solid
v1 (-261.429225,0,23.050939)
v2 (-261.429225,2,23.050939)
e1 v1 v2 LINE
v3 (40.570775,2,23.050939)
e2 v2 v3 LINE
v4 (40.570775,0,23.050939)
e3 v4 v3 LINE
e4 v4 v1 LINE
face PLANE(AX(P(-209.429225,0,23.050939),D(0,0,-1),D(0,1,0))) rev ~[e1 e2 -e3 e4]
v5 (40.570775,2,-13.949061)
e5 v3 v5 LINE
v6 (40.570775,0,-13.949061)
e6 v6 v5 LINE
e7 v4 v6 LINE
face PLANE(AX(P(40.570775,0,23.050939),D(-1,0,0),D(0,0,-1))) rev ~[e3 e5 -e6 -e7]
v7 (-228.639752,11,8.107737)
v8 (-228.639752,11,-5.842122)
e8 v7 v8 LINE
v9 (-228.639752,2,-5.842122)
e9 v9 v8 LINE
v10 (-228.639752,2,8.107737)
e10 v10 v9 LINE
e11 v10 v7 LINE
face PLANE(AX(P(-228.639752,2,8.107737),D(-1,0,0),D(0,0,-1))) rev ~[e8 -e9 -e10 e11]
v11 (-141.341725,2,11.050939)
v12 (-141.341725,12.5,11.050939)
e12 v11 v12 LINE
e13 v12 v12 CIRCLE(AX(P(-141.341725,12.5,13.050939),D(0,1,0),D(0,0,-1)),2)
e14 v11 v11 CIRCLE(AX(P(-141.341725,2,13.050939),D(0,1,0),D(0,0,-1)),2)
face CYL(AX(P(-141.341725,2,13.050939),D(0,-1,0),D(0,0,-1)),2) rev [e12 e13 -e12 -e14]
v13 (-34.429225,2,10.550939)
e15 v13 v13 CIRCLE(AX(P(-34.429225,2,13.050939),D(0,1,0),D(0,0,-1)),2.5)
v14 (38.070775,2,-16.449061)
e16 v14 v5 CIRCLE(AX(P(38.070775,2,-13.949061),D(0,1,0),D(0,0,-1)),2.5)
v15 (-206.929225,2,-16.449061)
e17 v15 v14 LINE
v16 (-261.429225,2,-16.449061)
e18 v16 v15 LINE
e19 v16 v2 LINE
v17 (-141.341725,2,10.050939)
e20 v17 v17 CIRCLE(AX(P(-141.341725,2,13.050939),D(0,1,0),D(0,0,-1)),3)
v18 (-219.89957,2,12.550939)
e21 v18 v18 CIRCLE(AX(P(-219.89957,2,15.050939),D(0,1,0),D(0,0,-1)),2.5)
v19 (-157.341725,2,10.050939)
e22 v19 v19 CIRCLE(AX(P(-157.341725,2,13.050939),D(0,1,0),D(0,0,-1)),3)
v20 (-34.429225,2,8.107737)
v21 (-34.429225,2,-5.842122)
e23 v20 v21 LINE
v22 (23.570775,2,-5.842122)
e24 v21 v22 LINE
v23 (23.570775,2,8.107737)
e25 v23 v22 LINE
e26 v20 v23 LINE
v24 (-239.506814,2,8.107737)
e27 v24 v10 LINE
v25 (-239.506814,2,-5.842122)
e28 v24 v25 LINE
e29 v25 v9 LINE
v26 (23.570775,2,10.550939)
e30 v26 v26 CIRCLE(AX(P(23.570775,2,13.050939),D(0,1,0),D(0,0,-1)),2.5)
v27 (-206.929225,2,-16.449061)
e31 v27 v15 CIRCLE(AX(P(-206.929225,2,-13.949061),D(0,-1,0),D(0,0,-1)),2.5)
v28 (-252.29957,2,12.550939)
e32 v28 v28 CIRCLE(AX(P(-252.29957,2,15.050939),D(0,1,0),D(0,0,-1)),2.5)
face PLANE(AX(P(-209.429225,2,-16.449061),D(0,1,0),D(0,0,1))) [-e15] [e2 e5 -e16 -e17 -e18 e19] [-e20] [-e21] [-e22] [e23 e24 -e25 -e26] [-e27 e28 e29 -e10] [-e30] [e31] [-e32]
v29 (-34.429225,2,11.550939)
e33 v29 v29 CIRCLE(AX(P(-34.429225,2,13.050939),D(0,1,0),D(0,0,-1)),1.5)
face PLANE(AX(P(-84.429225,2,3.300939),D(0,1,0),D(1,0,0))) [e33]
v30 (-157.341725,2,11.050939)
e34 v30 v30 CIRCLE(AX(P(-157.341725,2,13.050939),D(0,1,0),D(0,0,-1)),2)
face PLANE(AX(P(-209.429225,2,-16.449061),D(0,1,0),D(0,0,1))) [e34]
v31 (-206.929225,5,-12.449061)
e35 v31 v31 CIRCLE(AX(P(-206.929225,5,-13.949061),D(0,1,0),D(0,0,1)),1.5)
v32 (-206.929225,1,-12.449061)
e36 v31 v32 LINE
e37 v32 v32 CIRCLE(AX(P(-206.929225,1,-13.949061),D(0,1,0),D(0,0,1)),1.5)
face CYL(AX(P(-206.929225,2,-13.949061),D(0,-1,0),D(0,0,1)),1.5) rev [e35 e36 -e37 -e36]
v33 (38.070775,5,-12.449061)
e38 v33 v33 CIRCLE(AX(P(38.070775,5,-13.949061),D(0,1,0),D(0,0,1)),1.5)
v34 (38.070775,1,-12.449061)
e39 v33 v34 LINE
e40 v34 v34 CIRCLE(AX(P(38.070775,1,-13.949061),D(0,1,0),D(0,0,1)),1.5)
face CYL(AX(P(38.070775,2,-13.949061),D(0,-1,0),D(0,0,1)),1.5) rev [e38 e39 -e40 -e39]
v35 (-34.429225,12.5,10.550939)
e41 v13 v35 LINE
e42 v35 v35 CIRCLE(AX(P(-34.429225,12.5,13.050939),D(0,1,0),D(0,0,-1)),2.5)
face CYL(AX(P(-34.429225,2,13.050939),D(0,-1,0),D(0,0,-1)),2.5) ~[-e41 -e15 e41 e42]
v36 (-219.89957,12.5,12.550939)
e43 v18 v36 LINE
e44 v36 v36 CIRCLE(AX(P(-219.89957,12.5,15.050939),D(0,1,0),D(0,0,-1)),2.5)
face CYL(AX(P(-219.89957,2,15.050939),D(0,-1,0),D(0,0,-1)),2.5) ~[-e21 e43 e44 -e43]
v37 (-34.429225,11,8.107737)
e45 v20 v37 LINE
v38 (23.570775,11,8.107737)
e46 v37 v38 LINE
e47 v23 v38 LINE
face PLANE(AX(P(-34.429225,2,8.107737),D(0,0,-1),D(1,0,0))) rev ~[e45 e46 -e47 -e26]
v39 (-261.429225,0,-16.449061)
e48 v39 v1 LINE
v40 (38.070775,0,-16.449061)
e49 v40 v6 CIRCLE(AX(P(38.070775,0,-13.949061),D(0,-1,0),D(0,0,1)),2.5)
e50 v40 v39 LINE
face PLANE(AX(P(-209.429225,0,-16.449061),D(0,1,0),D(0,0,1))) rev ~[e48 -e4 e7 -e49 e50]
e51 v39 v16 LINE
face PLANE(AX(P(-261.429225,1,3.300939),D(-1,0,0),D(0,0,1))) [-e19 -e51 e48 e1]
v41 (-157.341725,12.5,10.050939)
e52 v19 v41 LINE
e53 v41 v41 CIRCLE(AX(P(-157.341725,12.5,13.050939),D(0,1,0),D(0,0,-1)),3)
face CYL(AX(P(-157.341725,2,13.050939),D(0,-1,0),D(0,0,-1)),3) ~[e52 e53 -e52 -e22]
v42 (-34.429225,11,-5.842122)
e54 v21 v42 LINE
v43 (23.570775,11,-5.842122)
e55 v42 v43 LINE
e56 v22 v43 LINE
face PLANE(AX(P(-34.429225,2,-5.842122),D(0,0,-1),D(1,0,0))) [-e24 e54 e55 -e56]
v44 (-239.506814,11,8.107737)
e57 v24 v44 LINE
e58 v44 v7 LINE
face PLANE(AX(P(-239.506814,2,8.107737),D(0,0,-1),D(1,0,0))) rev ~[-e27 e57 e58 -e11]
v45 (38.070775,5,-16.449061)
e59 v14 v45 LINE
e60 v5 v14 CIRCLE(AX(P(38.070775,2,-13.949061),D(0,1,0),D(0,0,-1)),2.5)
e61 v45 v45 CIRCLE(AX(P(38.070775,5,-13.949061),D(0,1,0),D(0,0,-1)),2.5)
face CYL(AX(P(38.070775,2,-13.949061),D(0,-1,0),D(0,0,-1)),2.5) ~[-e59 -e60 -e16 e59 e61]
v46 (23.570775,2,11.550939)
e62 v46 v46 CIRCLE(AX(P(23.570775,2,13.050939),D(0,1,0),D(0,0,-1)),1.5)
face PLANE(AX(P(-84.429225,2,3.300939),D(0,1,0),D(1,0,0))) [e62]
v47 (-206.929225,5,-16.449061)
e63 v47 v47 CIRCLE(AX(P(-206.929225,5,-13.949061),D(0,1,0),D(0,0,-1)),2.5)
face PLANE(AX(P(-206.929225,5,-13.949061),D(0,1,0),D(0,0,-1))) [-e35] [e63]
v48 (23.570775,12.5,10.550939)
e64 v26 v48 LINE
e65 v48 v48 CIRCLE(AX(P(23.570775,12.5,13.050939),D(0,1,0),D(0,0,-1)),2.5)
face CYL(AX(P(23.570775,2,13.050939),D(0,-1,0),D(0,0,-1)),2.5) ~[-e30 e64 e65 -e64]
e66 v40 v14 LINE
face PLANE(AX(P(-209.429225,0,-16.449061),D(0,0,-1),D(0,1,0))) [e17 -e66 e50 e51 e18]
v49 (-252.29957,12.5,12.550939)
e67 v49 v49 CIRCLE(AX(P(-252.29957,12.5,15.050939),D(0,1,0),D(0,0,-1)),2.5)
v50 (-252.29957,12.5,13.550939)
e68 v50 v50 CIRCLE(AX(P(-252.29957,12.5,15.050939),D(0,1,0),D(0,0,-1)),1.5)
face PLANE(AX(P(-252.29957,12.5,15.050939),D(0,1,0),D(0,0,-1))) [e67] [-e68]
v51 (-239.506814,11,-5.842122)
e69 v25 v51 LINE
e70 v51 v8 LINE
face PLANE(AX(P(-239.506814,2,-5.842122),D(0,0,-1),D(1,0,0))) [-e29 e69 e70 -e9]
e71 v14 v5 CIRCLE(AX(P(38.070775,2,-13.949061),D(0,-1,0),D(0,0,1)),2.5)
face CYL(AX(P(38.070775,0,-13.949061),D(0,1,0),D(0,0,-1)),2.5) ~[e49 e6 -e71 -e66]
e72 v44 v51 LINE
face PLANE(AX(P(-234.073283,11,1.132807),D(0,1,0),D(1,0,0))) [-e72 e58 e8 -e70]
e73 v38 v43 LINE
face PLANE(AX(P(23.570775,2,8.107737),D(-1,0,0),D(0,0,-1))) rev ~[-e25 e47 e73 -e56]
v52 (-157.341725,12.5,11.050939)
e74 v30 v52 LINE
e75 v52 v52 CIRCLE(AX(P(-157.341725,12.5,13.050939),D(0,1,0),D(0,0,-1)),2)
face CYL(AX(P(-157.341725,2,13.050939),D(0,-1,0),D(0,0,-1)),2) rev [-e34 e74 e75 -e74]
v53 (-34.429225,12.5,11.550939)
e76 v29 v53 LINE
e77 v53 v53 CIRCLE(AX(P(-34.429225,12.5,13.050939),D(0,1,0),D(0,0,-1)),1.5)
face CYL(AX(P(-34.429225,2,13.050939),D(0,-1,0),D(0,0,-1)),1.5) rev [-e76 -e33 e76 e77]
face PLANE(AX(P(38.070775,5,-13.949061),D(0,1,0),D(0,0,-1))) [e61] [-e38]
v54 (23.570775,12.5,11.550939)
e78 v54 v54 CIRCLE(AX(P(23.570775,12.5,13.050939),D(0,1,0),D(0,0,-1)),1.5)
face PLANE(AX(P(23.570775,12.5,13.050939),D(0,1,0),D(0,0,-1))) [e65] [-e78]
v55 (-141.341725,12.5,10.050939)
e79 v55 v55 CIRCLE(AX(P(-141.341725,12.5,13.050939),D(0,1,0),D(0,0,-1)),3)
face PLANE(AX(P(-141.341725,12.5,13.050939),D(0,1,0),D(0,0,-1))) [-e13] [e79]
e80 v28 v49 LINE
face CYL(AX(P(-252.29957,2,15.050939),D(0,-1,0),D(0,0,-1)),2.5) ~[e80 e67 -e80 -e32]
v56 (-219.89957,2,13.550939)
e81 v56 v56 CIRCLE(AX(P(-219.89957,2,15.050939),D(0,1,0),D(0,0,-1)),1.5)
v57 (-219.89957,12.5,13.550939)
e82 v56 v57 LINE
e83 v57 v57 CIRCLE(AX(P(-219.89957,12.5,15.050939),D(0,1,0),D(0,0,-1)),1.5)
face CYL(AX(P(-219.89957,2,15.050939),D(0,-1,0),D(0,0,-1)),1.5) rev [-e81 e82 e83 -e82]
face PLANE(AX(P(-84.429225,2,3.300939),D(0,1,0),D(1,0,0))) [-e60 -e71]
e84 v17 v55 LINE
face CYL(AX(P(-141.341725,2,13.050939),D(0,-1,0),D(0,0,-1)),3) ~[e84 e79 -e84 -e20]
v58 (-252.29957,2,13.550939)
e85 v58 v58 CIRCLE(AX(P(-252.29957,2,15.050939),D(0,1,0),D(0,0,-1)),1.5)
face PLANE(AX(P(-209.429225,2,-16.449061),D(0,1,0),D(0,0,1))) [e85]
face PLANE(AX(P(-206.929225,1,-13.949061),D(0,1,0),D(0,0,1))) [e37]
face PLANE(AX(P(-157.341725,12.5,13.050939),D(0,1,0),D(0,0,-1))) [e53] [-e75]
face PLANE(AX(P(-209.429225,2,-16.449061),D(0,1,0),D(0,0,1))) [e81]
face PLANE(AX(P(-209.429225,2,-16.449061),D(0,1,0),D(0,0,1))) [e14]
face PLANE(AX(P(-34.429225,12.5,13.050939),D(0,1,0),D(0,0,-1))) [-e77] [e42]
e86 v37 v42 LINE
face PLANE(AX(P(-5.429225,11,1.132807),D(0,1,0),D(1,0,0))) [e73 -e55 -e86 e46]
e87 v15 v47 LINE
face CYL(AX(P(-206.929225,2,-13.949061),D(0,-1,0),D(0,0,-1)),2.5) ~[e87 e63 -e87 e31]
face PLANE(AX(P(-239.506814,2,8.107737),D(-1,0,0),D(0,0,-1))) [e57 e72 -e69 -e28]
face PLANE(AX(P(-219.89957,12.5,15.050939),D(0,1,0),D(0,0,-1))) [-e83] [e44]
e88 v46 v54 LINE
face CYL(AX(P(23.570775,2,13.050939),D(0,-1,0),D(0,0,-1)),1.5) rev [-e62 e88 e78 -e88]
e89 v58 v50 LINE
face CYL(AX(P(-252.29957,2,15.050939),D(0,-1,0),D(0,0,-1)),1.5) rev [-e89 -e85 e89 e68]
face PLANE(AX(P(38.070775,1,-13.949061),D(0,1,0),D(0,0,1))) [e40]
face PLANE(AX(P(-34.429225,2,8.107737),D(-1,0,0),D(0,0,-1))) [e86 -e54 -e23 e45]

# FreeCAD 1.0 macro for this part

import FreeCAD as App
import Part
import Sketcher

V = App.Vector
Q = App.Units.Quantity


def edges_at(feature, points):
    """Names of the edges that pass closest to the given points."""
    edges = feature.Shape.Edges
    near = lambda p: min(range(len(edges)), key=lambda i: edges[i].distToShape(Part.Vertex(*p))[0])
    return sorted({f"Edge{near(p) + 1}" for p in points})


def add_polygon(sketch, points):
    """Adds a closed chain of lines whose ends are joined by coincident constraints."""
    first, n = sketch.GeometryCount, len(points)
    for a, b in zip(points, points[1:] + points[:1]):
        sketch.addGeometry(Part.LineSegment(App.Vector(*a, 0), App.Vector(*b, 0)), False)
    for i in range(n):
        sketch.addConstraint(Sketcher.Constraint("Coincident", first + i, 2, first + (i + 1) % n, 1))

doc = App.newDocument("Part")
body = doc.addObject("PartDesign::Body", "Body")

sketch1 = body.newObject("Sketcher::SketchObject", "Sketch")
sketch1.AttachmentSupport = (doc.getObject("XZ_Plane"), [""])
sketch1.MapMode = "FlatFace"
add_polygon(sketch1, [(-209, -16), (-209, 23), (41, 23), (41, -16)])
sketch1.addConstraint([
    Sketcher.Constraint("Vertical", 0),
    Sketcher.Constraint("Horizontal", 1),
    Sketcher.Constraint("Vertical", 2),
    Sketcher.Constraint("Horizontal", 3),
    Sketcher.Constraint("DistanceX", 1, 1, 1, 2, Q("250 mm")),
    Sketcher.Constraint("DistanceY", 0, 1, 0, 2, Q("39.5 mm")),
    Sketcher.Constraint("DistanceY", -1, 1, 0, 2, Q("23.050939 mm")),
    Sketcher.Constraint("DistanceX", 0, 2, -1, 1, Q("209.429225 mm")),
])
pad1 = body.newObject("PartDesign::Pad", "Pad")
pad1.Profile = sketch1
pad1.Length = 2
pad1.Reversed = True

sketch2 = body.newObject("Sketcher::SketchObject", "Sketch001")
sketch2.AttachmentSupport = (doc.getObject("XZ_Plane"), [""])
sketch2.MapMode = "FlatFace"
sketch2.AttachmentOffset = App.Placement(V(0, 0, -2), App.Rotation())
sketch2.addGeometry([
    Part.Circle(V(38.1, -13.9, 0), V(0, 0, 1), 2.5),
    Part.Circle(V(38.1, -13.9, 0), V(0, 0, 1), 1.5),
], False)
sketch2.addConstraint([
    Sketcher.Constraint("Coincident", 1, 3, 0, 3),
    Sketcher.Constraint("Diameter", 0, Q("5 mm")),
    Sketcher.Constraint("Diameter", 1, Q("3 mm")),
    Sketcher.Constraint("DistanceY", 0, 3, -1, 1, Q("13.949061 mm")),
    Sketcher.Constraint("DistanceX", -1, 1, 0, 3, Q("38.070775 mm")),
])
pad2 = body.newObject("PartDesign::Pad", "Pad001")
pad2.Profile = sketch2
pad2.Length = 3
pad2.Reversed = True
doc.recompute()

fillet = body.newObject("PartDesign::Fillet", "Fillet")
fillet.Base = (pad2, edges_at(pad2, [(40.571, 1, -16.449)]))
fillet.Radius = 2.5

sketch3 = body.newObject("Sketcher::SketchObject", "Sketch002")
sketch3.AttachmentSupport = (doc.getObject("XZ_Plane"), [""])
sketch3.MapMode = "FlatFace"
sketch3.AttachmentOffset = App.Placement(V(0, 0, -2), App.Rotation())
sketch3.addGeometry([
    Part.Circle(V(-206.9, -13.9, 0), V(0, 0, 1), 2.5),
    Part.Circle(V(-206.9, -13.9, 0), V(0, 0, 1), 1.5),
], False)
sketch3.addConstraint([
    Sketcher.Constraint("Coincident", 1, 3, 0, 3),
    Sketcher.Constraint("Diameter", 0, Q("5 mm")),
    Sketcher.Constraint("Diameter", 1, Q("3 mm")),
    Sketcher.Constraint("DistanceY", 0, 3, -1, 1, Q("13.949061 mm")),
    Sketcher.Constraint("DistanceX", 0, 3, -1, 1, Q("206.929225 mm")),
])
pad3 = body.newObject("PartDesign::Pad", "Pad002")
pad3.Profile = sketch3
pad3.Length = 3
pad3.Reversed = True

sketch4 = body.newObject("Sketcher::SketchObject", "Sketch003")
sketch4.AttachmentSupport = (doc.getObject("XZ_Plane"), [""])
sketch4.MapMode = "FlatFace"
sketch4.AttachmentOffset = App.Placement(V(0, 0, -1), App.Rotation())
sketch4.addGeometry(Part.Circle(V(38.1, -13.9, 0), V(0, 0, 1), 1.5), False)
sketch4.addConstraint([
    Sketcher.Constraint("Diameter", 0, Q("3 mm")),
    Sketcher.Constraint("DistanceY", 0, 3, -1, 1, Q("13.949061 mm")),
    Sketcher.Constraint("DistanceX", -1, 1, 0, 3, Q("38.070775 mm")),
])
pocket1 = body.newObject("PartDesign::Pocket", "Pocket")
pocket1.Profile = sketch4
pocket1.Length = 1

sketch5 = body.newObject("Sketcher::SketchObject", "Sketch004")
sketch5.AttachmentSupport = (doc.getObject("XZ_Plane"), [""])
sketch5.MapMode = "FlatFace"
sketch5.AttachmentOffset = App.Placement(V(0, 0, -1), App.Rotation())
sketch5.addGeometry(Part.Circle(V(-206.9, -13.9, 0), V(0, 0, 1), 1.5), False)
sketch5.addConstraint([
    Sketcher.Constraint("Diameter", 0, Q("3 mm")),
    Sketcher.Constraint("DistanceY", 0, 3, -1, 1, Q("13.949061 mm")),
    Sketcher.Constraint("DistanceX", 0, 3, -1, 1, Q("206.929225 mm")),
])
pocket2 = body.newObject("PartDesign::Pocket", "Pocket001")
pocket2.Profile = sketch5
pocket2.Length = 1

sketch6 = body.newObject("Sketcher::SketchObject", "Sketch005")
sketch6.AttachmentSupport = (doc.getObject("XZ_Plane"), [""])
sketch6.MapMode = "FlatFace"
sketch6.AttachmentOffset = App.Placement(V(0, 0, -2), App.Rotation())
sketch6.addGeometry([
    Part.Circle(V(23.6, 13.1, 0), V(0, 0, 1), 2.5),
    Part.Circle(V(23.6, 13.1, 0), V(0, 0, 1), 1.5),
    Part.Circle(V(-34.4, 13.1, 0), V(0, 0, 1), 2.5),
    Part.Circle(V(-34.4, 13.1, 0), V(0, 0, 1), 1.5),
], False)
sketch6.addConstraint([
    Sketcher.Constraint("Coincident", 1, 3, 0, 3),
    Sketcher.Constraint("Coincident", 3, 3, 2, 3),
    Sketcher.Constraint("Equal", 0, 2),
    Sketcher.Constraint("Equal", 1, 3),
    Sketcher.Constraint("Horizontal", 1, 3, 2, 3),
    Sketcher.Constraint("Diameter", 0, Q("5 mm")),
    Sketcher.Constraint("Diameter", 1, Q("3 mm")),
    Sketcher.Constraint("DistanceX", 2, 3, 0, 3, Q("58 mm")),
    Sketcher.Constraint("DistanceY", -1, 1, 0, 3, Q("13.050939 mm")),
    Sketcher.Constraint("DistanceX", -1, 1, 0, 3, Q("23.570775 mm")),
])
pad4 = body.newObject("PartDesign::Pad", "Pad003")
pad4.Profile = sketch6
pad4.Length = 10.5
pad4.Reversed = True

sketch7 = body.newObject("Sketcher::SketchObject", "Sketch006")
sketch7.AttachmentSupport = (doc.getObject("YZ_Plane"), [""])
sketch7.MapMode = "FlatFace"
sketch7.AttachmentOffset = App.Placement(V(0, 0, -209.429225), App.Rotation())
add_polygon(sketch7, [(2, -16.4), (0, -16.4), (0, 23.1), (2, 23.1)])
sketch7.addConstraint([
    Sketcher.Constraint("Horizontal", 0),
    Sketcher.Constraint("Vertical", 1),
    Sketcher.Constraint("Horizontal", 2),
    Sketcher.Constraint("Vertical", 3),
    Sketcher.Constraint("PointOnObject", 0, 2, -2),
    Sketcher.Constraint("DistanceX", 0, 2, 0, 1, Q("2 mm")),
    Sketcher.Constraint("DistanceY", 1, 1, 1, 2, Q("39.5 mm")),
    Sketcher.Constraint("DistanceY", 0, 2, -1, 1, Q("16.449061 mm")),
])
pad5 = body.newObject("PartDesign::Pad", "Pad004")
pad5.Profile = sketch7
pad5.Length = 52
pad5.Reversed = True

sketch8 = body.newObject("Sketcher::SketchObject", "Sketch007")
sketch8.AttachmentSupport = (doc.getObject("XZ_Plane"), [""])
sketch8.MapMode = "FlatFace"
sketch8.AttachmentOffset = App.Placement(V(0, 0, -2), App.Rotation())
sketch8.addGeometry([
    Part.Circle(V(-252.3, 15.1, 0), V(0, 0, 1), 2.5),
    Part.Circle(V(-252.3, 15.1, 0), V(0, 0, 1), 1.5),
    Part.Circle(V(-219.9, 15.1, 0), V(0, 0, 1), 2.5),
    Part.Circle(V(-219.9, 15.1, 0), V(0, 0, 1), 1.5),
], False)
sketch8.addConstraint([
    Sketcher.Constraint("Coincident", 1, 3, 0, 3),
    Sketcher.Constraint("Coincident", 3, 3, 2, 3),
    Sketcher.Constraint("Equal", 0, 2),
    Sketcher.Constraint("Equal", 1, 3),
    Sketcher.Constraint("Horizontal", 1, 3, 2, 3),
    Sketcher.Constraint("Diameter", 0, Q("5 mm")),
    Sketcher.Constraint("Diameter", 1, Q("3 mm")),
    Sketcher.Constraint("DistanceX", 0, 3, 2, 3, Q("32.4 mm")),
    Sketcher.Constraint("DistanceX", 0, 3, -1, 1, Q("252.29957 mm")),
    Sketcher.Constraint("DistanceY", -1, 1, 0, 3, Q("15.050939 mm")),
])
pad6 = body.newObject("PartDesign::Pad", "Pad005")
pad6.Profile = sketch8
pad6.Length = 10.5
pad6.Reversed = True

sketch9 = body.newObject("Sketcher::SketchObject", "Sketch008")
sketch9.AttachmentSupport = (doc.getObject("XZ_Plane"), [""])
sketch9.MapMode = "FlatFace"
sketch9.AttachmentOffset = App.Placement(V(0, 0, -2), App.Rotation())
add_polygon(sketch9, [(-34, -6), (-34, 8), (24, 8), (24, -6)])
add_polygon(sketch9, [(-240, -6), (-240, 8), (-229, 8), (-229, -6)])
sketch9.addConstraint([
    Sketcher.Constraint("Vertical", 0),
    Sketcher.Constraint("Horizontal", 1),
    Sketcher.Constraint("Vertical", 2),
    Sketcher.Constraint("Horizontal", 3),
    Sketcher.Constraint("Vertical", 4),
    Sketcher.Constraint("Horizontal", 5),
    Sketcher.Constraint("Vertical", 6),
    Sketcher.Constraint("Horizontal", 7),
    Sketcher.Constraint("Horizontal", 1, 2, 4, 2),
    Sketcher.Constraint("Horizontal", 3, 2, 6, 2),
    Sketcher.Constraint("DistanceX", 1, 1, 1, 2, Q("58 mm")),
    Sketcher.Constraint("DistanceX", 5, 1, 5, 2, Q("10.867062 mm")),
    Sketcher.Constraint("DistanceY", 0, 1, 0, 2, Q("13.949859 mm")),
    Sketcher.Constraint("DistanceY", 2, 2, -1, 1, Q("5.842122 mm")),
    Sketcher.Constraint("DistanceX", 4, 2, 0, 2, Q("205.077589 mm")),
    Sketcher.Constraint("DistanceX", 0, 2, -1, 1, Q("34.429225 mm")),
])
pad7 = body.newObject("PartDesign::Pad", "Pad006")
pad7.Profile = sketch9
pad7.Length = 9
pad7.Reversed = True

sketch10 = body.newObject("Sketcher::SketchObject", "Sketch009")
sketch10.AttachmentSupport = (doc.getObject("XZ_Plane"), [""])
sketch10.MapMode = "FlatFace"
sketch10.AttachmentOffset = App.Placement(V(0, 0, -2), App.Rotation())
sketch10.addGeometry([
    Part.Circle(V(-141.3, 13.1, 0), V(0, 0, 1), 3),
    Part.Circle(V(-141.3, 13.1, 0), V(0, 0, 1), 2),
    Part.Circle(V(-157.3, 13.1, 0), V(0, 0, 1), 3),
    Part.Circle(V(-157.3, 13.1, 0), V(0, 0, 1), 2),
], False)
sketch10.addConstraint([
    Sketcher.Constraint("Coincident", 1, 3, 0, 3),
    Sketcher.Constraint("Coincident", 3, 3, 2, 3),
    Sketcher.Constraint("Equal", 0, 2),
    Sketcher.Constraint("Equal", 1, 3),
    Sketcher.Constraint("Horizontal", 1, 3, 2, 3),
    Sketcher.Constraint("Diameter", 0, Q("6 mm")),
    Sketcher.Constraint("Diameter", 1, Q("4 mm")),
    Sketcher.Constraint("DistanceX", 2, 3, 0, 3, Q("16 mm")),
    Sketcher.Constraint("DistanceY", -1, 1, 0, 3, Q("13.050939 mm")),
    Sketcher.Constraint("DistanceX", 0, 3, -1, 1, Q("141.341725 mm")),
])
pad8 = body.newObject("PartDesign::Pad", "Pad007")
pad8.Profile = sketch10
pad8.Length = 10.5
pad8.Reversed = True

doc.recompute()
